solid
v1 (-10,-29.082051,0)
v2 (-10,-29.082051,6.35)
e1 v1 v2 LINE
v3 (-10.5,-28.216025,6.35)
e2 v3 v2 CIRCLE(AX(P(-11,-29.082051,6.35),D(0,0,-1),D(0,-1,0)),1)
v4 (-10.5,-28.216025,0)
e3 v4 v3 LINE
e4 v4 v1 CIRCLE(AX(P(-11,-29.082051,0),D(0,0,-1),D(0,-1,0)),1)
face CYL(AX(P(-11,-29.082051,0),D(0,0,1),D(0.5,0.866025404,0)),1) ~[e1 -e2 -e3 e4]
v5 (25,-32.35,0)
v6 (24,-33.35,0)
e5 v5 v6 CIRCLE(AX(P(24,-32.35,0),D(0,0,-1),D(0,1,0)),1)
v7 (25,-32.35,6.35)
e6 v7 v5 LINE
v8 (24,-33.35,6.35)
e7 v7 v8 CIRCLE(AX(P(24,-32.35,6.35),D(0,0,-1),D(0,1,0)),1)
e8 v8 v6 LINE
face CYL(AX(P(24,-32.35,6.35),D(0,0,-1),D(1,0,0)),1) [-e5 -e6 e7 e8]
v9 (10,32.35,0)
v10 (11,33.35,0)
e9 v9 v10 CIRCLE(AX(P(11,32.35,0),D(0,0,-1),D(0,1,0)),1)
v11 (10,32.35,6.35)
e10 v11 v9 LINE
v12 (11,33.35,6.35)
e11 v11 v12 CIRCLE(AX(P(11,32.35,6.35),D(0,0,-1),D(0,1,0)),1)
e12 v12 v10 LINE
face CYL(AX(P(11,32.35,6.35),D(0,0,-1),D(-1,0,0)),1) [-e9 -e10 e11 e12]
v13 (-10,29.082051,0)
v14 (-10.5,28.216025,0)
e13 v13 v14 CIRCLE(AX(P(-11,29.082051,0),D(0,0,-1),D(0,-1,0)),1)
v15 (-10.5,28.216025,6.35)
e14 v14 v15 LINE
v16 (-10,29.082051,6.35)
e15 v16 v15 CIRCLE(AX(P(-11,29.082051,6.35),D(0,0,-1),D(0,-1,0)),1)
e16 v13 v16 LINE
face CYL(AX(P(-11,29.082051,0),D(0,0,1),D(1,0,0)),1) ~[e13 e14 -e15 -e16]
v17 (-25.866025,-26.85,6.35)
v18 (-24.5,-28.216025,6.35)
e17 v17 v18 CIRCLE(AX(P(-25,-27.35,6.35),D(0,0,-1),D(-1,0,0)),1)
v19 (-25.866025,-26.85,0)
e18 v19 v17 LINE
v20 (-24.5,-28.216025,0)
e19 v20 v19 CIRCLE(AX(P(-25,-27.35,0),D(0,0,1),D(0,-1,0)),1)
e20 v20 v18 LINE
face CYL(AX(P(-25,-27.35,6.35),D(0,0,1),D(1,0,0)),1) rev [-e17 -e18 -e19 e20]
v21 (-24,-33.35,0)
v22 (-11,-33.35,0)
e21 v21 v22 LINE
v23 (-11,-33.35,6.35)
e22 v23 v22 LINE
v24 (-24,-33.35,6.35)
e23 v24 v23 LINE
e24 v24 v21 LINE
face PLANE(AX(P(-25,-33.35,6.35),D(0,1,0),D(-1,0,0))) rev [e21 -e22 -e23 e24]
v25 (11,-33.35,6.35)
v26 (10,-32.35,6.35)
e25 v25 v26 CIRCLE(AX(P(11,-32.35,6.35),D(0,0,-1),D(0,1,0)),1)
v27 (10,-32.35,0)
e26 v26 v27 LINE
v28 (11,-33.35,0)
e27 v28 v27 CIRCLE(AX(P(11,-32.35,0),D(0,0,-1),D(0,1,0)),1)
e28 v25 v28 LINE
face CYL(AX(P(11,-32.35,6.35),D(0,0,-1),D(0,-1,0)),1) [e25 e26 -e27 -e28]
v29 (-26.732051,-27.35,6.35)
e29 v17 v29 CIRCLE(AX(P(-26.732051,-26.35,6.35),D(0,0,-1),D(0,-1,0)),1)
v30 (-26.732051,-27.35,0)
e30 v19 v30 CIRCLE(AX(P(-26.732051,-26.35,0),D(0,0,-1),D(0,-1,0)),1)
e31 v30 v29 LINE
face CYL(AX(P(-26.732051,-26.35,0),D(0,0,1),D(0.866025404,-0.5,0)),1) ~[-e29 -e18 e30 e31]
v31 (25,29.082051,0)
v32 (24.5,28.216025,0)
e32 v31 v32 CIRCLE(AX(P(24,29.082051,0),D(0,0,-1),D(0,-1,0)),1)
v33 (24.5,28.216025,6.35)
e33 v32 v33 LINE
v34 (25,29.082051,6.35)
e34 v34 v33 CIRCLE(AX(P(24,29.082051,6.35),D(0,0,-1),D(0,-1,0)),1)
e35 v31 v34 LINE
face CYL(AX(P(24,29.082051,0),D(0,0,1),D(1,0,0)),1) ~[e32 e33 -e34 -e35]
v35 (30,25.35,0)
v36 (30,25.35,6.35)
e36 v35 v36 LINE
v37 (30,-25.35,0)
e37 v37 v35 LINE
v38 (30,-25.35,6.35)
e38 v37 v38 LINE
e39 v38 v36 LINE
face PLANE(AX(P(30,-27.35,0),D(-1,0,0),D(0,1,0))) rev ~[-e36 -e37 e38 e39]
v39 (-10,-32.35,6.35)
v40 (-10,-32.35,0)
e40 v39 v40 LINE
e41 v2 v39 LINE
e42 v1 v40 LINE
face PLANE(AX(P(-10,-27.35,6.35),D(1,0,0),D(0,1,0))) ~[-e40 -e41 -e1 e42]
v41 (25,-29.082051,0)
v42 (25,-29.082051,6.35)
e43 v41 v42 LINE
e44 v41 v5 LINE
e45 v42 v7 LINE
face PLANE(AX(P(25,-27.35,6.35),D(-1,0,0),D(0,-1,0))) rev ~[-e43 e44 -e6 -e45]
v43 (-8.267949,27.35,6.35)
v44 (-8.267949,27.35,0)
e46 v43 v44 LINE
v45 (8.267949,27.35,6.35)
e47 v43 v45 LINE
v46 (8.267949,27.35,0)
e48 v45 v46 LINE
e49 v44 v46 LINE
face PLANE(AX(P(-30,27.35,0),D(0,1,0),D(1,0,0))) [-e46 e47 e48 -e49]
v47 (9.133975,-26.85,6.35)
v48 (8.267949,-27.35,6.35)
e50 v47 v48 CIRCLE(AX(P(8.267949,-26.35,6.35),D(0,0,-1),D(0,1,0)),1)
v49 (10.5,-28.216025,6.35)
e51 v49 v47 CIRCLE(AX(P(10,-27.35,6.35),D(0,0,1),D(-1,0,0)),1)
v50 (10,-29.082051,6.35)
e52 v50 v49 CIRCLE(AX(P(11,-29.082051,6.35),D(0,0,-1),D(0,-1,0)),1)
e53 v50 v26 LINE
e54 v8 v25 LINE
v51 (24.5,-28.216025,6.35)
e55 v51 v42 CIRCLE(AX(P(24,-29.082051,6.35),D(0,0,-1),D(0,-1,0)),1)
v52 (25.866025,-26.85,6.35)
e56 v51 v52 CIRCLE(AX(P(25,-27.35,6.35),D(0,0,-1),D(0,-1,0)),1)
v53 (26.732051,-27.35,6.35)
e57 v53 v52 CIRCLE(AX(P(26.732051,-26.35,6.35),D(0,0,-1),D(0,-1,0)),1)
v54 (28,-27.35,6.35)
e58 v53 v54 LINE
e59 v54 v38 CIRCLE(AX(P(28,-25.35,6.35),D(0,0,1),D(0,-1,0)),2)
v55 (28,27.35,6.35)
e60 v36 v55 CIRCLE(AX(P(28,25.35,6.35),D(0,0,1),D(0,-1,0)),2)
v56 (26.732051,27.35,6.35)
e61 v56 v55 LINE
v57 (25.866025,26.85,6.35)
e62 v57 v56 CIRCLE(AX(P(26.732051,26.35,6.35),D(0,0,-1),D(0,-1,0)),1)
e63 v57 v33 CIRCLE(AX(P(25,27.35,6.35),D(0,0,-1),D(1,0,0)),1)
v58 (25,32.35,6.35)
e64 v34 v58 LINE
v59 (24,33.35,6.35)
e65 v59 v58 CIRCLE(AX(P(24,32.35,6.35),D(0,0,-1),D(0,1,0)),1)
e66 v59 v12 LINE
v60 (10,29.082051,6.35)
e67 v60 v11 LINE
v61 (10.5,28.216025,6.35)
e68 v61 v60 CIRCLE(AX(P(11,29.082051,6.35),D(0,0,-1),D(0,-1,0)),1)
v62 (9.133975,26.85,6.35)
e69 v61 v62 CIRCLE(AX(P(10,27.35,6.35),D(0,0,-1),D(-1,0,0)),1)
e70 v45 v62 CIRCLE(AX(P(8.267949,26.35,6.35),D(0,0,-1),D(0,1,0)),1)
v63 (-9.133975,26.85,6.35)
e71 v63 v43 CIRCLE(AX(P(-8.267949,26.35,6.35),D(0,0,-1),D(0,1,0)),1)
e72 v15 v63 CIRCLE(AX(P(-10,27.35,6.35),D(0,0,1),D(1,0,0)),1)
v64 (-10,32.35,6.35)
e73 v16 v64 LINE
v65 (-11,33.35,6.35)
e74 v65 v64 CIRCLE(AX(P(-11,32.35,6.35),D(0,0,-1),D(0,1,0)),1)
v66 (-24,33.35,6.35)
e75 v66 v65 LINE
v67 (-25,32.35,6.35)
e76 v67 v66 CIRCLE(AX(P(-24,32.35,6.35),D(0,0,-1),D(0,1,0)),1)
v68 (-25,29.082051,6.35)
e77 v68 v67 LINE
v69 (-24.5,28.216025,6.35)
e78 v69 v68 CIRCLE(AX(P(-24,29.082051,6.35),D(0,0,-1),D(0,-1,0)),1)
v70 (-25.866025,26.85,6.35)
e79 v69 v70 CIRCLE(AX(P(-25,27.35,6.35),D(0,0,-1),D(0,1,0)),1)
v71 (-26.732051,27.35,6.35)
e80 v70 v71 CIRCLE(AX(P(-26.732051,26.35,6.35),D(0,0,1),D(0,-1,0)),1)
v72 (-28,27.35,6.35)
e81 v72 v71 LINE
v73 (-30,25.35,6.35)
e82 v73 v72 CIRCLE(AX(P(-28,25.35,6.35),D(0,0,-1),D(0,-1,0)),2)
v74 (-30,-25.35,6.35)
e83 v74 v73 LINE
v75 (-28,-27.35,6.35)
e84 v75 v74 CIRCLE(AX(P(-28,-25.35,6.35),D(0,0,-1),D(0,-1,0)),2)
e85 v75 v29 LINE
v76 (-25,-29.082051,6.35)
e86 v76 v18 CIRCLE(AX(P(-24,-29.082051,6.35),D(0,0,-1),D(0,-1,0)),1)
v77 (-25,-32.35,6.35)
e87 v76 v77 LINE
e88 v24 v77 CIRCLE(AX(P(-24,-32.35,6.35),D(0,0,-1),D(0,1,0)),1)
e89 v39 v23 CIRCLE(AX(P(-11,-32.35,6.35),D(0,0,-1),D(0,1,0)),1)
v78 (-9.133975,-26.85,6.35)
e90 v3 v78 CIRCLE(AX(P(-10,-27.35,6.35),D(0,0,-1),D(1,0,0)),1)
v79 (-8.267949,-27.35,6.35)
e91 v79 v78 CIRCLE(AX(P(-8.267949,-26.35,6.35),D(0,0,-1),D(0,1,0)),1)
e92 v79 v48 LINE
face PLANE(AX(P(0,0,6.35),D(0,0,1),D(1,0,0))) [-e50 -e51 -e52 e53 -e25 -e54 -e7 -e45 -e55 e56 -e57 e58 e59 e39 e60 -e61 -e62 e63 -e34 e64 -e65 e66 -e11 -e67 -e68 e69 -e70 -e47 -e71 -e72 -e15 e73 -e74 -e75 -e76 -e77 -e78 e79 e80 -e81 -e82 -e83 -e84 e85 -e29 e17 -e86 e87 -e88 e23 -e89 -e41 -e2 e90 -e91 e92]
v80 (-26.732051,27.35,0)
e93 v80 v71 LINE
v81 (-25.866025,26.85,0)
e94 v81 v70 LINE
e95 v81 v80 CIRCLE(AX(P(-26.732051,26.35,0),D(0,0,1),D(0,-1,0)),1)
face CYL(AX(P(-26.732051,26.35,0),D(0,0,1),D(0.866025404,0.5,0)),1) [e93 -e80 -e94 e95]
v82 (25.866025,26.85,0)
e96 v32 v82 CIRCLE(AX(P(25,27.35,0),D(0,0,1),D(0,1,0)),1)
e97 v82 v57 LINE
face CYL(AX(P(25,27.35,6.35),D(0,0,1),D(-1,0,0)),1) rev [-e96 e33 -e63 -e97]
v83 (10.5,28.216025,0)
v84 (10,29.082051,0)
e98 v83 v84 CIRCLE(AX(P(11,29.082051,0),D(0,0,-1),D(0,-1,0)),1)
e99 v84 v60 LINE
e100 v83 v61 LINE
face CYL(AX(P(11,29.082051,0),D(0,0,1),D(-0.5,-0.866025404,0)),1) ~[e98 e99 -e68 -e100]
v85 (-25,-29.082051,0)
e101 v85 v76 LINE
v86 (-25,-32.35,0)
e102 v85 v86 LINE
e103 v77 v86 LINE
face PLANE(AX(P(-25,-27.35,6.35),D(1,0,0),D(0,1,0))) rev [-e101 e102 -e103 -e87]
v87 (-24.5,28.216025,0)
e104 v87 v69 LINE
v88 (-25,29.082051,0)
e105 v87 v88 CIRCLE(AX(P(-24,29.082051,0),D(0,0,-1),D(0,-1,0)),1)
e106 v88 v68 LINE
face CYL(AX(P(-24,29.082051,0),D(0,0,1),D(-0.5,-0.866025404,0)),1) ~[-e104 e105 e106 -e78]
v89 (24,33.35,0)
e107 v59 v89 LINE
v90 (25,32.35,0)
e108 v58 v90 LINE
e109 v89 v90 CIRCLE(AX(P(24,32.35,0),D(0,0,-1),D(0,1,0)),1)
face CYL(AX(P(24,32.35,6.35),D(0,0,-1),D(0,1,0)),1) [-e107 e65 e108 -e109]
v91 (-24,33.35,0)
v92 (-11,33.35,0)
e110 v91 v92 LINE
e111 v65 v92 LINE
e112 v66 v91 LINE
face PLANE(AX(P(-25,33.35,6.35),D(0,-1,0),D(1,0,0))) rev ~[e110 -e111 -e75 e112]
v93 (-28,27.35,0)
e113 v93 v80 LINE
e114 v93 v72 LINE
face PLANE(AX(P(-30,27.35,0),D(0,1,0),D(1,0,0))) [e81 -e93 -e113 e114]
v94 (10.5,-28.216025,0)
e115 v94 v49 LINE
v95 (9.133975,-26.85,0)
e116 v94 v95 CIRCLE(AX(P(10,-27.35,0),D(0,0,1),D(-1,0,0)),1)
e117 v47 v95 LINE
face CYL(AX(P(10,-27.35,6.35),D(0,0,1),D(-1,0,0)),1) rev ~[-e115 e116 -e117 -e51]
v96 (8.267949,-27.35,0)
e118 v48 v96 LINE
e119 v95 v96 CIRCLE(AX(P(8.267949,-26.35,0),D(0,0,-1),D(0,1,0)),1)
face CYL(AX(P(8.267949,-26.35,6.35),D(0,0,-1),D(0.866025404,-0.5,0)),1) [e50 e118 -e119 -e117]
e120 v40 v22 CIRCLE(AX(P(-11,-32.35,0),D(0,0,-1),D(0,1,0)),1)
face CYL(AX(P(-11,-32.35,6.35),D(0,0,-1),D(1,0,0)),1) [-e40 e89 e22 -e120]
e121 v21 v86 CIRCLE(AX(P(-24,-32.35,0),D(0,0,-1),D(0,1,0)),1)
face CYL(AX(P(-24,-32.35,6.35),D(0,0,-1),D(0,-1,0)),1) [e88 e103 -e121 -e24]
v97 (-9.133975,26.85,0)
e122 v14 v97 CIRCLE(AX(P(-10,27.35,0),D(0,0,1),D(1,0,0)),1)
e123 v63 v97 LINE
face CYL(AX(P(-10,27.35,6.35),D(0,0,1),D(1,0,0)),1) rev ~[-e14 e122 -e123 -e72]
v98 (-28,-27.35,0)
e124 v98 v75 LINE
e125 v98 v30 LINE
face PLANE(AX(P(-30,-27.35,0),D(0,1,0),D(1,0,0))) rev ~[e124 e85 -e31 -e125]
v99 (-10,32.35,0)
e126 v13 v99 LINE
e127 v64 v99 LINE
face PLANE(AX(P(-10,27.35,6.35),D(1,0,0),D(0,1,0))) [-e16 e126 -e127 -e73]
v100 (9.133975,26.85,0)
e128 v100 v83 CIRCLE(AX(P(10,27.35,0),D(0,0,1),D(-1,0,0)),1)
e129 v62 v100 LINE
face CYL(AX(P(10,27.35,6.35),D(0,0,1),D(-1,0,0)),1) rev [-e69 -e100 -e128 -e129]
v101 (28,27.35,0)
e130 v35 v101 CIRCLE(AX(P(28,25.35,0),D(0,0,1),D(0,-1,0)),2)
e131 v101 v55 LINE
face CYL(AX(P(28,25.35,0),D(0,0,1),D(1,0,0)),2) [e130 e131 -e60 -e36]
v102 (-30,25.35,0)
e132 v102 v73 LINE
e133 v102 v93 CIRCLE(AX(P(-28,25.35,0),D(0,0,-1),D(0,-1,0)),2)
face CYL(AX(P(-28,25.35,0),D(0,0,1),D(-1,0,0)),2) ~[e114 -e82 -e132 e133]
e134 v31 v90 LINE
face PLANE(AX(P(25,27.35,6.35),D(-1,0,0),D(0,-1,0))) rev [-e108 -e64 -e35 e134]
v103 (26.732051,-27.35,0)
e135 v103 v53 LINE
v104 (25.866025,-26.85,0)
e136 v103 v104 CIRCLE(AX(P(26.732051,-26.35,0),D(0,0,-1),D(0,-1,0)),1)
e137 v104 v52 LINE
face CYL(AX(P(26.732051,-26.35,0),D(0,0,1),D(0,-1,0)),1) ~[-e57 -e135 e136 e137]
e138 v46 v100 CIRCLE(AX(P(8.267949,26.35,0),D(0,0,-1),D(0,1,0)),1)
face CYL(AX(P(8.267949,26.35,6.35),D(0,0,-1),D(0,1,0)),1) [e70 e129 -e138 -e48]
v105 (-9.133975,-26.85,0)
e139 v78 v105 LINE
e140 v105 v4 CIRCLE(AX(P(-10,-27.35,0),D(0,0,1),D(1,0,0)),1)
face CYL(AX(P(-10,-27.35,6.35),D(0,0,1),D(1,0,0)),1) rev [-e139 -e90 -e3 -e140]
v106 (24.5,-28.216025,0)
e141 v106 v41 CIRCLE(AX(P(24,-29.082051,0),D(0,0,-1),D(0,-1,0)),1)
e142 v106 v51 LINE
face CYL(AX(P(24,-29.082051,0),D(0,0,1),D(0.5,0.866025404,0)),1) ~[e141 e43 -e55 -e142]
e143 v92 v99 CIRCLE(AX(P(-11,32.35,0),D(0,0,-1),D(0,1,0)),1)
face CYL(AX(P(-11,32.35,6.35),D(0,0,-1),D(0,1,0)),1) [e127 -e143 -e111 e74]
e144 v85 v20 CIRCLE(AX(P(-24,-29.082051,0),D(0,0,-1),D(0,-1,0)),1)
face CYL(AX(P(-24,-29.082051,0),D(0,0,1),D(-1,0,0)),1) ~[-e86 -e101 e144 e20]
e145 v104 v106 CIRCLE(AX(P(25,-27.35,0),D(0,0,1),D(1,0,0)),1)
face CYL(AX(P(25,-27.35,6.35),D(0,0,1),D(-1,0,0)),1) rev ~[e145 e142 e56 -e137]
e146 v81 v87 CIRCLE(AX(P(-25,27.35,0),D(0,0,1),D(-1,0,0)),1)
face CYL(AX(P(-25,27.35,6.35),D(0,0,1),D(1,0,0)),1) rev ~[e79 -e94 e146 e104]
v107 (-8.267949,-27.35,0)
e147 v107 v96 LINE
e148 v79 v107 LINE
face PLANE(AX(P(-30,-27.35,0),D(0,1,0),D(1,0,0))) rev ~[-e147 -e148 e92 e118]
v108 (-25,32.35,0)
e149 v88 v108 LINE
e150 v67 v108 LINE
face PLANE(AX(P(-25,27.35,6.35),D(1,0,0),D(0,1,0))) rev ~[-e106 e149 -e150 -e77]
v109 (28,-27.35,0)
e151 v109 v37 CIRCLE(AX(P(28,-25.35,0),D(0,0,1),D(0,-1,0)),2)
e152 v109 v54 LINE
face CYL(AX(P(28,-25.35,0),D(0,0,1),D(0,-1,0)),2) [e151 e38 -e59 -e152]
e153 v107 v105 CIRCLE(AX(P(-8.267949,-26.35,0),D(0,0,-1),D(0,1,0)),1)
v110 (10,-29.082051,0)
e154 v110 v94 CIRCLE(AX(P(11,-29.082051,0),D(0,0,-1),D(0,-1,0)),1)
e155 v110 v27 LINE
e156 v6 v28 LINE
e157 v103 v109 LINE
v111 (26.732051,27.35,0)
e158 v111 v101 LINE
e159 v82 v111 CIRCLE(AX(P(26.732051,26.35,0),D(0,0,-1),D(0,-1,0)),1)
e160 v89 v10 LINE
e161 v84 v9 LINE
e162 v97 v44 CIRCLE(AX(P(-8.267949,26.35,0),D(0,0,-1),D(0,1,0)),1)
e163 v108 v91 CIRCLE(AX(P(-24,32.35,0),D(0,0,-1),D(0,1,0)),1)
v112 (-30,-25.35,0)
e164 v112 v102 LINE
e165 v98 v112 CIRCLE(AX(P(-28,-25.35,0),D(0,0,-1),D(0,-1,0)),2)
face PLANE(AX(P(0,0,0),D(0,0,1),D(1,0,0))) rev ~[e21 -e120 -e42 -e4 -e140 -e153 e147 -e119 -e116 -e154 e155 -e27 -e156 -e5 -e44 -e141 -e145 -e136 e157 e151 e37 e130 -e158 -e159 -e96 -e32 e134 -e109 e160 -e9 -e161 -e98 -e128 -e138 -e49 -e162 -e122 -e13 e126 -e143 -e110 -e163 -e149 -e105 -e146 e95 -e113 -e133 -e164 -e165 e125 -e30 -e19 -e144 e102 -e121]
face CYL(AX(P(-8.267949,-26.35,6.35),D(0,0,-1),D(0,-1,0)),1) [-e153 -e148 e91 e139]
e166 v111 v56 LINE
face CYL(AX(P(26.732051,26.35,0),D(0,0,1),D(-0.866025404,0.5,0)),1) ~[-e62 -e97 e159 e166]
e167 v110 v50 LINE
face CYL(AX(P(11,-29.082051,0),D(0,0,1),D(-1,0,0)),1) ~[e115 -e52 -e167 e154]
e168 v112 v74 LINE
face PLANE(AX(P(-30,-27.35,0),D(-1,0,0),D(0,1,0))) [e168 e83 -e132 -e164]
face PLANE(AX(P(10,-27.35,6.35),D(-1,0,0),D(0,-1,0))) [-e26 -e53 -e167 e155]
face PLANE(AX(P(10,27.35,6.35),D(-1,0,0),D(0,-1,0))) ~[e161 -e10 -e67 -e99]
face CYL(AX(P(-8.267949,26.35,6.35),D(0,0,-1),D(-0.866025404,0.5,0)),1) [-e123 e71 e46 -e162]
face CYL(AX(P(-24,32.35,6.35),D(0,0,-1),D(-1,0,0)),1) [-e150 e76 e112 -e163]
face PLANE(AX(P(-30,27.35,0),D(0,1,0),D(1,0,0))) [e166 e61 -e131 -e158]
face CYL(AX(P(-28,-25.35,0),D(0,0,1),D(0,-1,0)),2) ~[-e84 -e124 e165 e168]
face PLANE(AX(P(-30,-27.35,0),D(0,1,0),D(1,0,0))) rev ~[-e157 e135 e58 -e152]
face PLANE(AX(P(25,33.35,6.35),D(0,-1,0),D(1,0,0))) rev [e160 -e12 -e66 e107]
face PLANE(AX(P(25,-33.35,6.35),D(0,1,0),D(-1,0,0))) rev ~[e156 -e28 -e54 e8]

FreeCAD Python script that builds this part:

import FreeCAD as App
import Part
import Sketcher
from FreeCAD import Vector


def edges_at(feature, points):
    """Names of the edges that pass closest to the given points."""
    edges = feature.Shape.Edges
    near = lambda p: min(range(len(edges)), key=lambda i: edges[i].distToShape(Part.Vertex(*p))[0])
    return sorted({f"Edge{near(p) + 1}" for p in points})


def add_polygon(sketch, points):
    """Adds a closed chain of lines whose ends are joined by coincident constraints."""
    first, n = sketch.GeometryCount, len(points)
    for a, b in zip(points, points[1:] + points[:1]):
        sketch.addGeometry(Part.LineSegment(App.Vector(*a, 0), App.Vector(*b, 0)), False)
    for i in range(n):
        sketch.addConstraint(Sketcher.Constraint("Coincident", first + i, 2, first + (i + 1) % n, 1))

doc = App.newDocument("Part")
body = doc.addObject("PartDesign::Body", "Body")

# Sketch on XY plane
sketch1 = body.newObject("Sketcher::SketchObject", "Sketch")
sketch1.AttachmentSupport = (doc.getObject("XY_Plane"), [""])
sketch1.MapMode = "FlatFace"
add_polygon(sketch1, [(-30, 27), (-30, -27), (30, -27), (30, 27)])  # lines 0-3
sketch1.addConstraint(Sketcher.Constraint("Vertical", 0))
sketch1.addConstraint(Sketcher.Constraint("Horizontal", 1))
sketch1.addConstraint(Sketcher.Constraint("Vertical", 2))
sketch1.addConstraint(Sketcher.Constraint("Horizontal", 3))
sketch1.addConstraint(Sketcher.Constraint("Symmetric", 0, 2, 2, 2, -1, 1))
sketch1.addConstraint(Sketcher.Constraint("DistanceX", 1, 1, 1, 2, 60.0))
sketch1.addConstraint(Sketcher.Constraint("DistanceY", 0, 2, 0, 1, 54.7))
pad1 = body.newObject("PartDesign::Pad", "Pad")
pad1.Profile = sketch1
pad1.Length = 6.35

# Sketch on XY plane
sketch2 = body.newObject("Sketcher::SketchObject", "Sketch001")
sketch2.AttachmentSupport = (doc.getObject("XY_Plane"), [""])
sketch2.MapMode = "FlatFace"
sketch2.AttachmentOffset = App.Placement(Vector(0, 0, 6.35), App.Rotation())
add_polygon(sketch2, [(-25, 33), (-25, 27), (-10, 27), (-10, 33)])  # lines 0-3
sketch2.addConstraint(Sketcher.Constraint("Vertical", 0))
sketch2.addConstraint(Sketcher.Constraint("Horizontal", 1))
sketch2.addConstraint(Sketcher.Constraint("Vertical", 2))
sketch2.addConstraint(Sketcher.Constraint("Horizontal", 3))
sketch2.addConstraint(Sketcher.Constraint("DistanceX", 1, 1, 1, 2, 15.0))
sketch2.addConstraint(Sketcher.Constraint("DistanceY", 0, 2, 0, 1, 6.0))
sketch2.addConstraint(Sketcher.Constraint("DistanceX", 0, 2, -1, 1, 25.0))
sketch2.addConstraint(Sketcher.Constraint("DistanceY", -1, 1, 0, 2, 27.35))
pad2 = body.newObject("PartDesign::Pad", "Pad001")
pad2.Profile = sketch2
pad2.Length = 6.35
pad2.Reversed = True

# Sketch on XY plane
sketch3 = body.newObject("Sketcher::SketchObject", "Sketch002")
sketch3.AttachmentSupport = (doc.getObject("XY_Plane"), [""])
sketch3.MapMode = "FlatFace"
sketch3.AttachmentOffset = App.Placement(Vector(0, 0, 6.35), App.Rotation())
sketch3.addGeometry(Part.Circle(Vector(-25, 27.4, 0), Vector(0, 0, 1), 1), False)
sketch3.addGeometry(Part.Circle(Vector(-10, 27.4, 0), Vector(0, 0, 1), 1), False)
sketch3.addConstraint(Sketcher.Constraint("Equal", 0, 1))
sketch3.addConstraint(Sketcher.Constraint("Horizontal", 0, 3, 1, 3))
sketch3.addConstraint(Sketcher.Constraint("Diameter", 0, 2.0))
sketch3.addConstraint(Sketcher.Constraint("DistanceX", 0, 3, -1, 1, 25.0))
sketch3.addConstraint(Sketcher.Constraint("DistanceX", 1, 3, -1, 1, 10.0))
sketch3.addConstraint(Sketcher.Constraint("DistanceY", -1, 1, 0, 3, 27.35))
pocket1 = body.newObject("PartDesign::Pocket", "Pocket")
pocket1.Profile = sketch3
pocket1.Type = "ThroughAll"
doc.recompute()

mirrored = body.newObject("PartDesign::Mirrored", "Mirrored")
mirrored.Originals = [pad2, pocket1]
mirrored.MirrorPlane = (doc.getObject("YZ_Plane"), [""])
body.Tip = mirrored
doc.recompute()

mirrored2 = body.newObject("PartDesign::Mirrored", "Mirrored001")
mirrored2.Originals = [pad2, pocket1]
mirrored2.MirrorPlane = (doc.getObject("XZ_Plane"), [""])
body.Tip = mirrored2

# Sketch on XY plane
sketch4 = body.newObject("Sketcher::SketchObject", "Sketch003")
sketch4.AttachmentSupport = (doc.getObject("XY_Plane"), [""])
sketch4.MapMode = "FlatFace"
sketch4.AttachmentOffset = App.Placement(Vector(0, 0, 6.35), App.Rotation())
add_polygon(sketch4, [(25, -33), (25, -27), (10, -27), (10, -33)])  # lines 0-3
sketch4.addConstraint(Sketcher.Constraint("Vertical", 0))
sketch4.addConstraint(Sketcher.Constraint("Horizontal", 1))
sketch4.addConstraint(Sketcher.Constraint("Vertical", 2))
sketch4.addConstraint(Sketcher.Constraint("Horizontal", 3))
sketch4.addConstraint(Sketcher.Constraint("DistanceX", 1, 2, 1, 1, 15.0))
sketch4.addConstraint(Sketcher.Constraint("DistanceY", 0, 1, 0, 2, 6.0))
sketch4.addConstraint(Sketcher.Constraint("DistanceX", -1, 1, 0, 2, 25.0))
sketch4.addConstraint(Sketcher.Constraint("DistanceY", 0, 2, -1, 1, 27.35))
pad3 = body.newObject("PartDesign::Pad", "Pad002")
pad3.Profile = sketch4
pad3.Length = 6.35
pad3.Reversed = True

# Sketch on XY plane
sketch5 = body.newObject("Sketcher::SketchObject", "Sketch004")
sketch5.AttachmentSupport = (doc.getObject("XY_Plane"), [""])
sketch5.MapMode = "FlatFace"
sketch5.AttachmentOffset = App.Placement(Vector(0, 0, 6.35), App.Rotation())
sketch5.addGeometry(Part.Circle(Vector(25, -27.4, 0), Vector(0, 0, 1), 1), False)
sketch5.addGeometry(Part.Circle(Vector(10, -27.4, 0), Vector(0, 0, 1), 1), False)
sketch5.addConstraint(Sketcher.Constraint("Equal", 0, 1))
sketch5.addConstraint(Sketcher.Constraint("Horizontal", 0, 3, 1, 3))
sketch5.addConstraint(Sketcher.Constraint("Diameter", 0, 2.0))
sketch5.addConstraint(Sketcher.Constraint("DistanceX", -1, 1, 0, 3, 25.0))
sketch5.addConstraint(Sketcher.Constraint("DistanceX", -1, 1, 1, 3, 10.0))
sketch5.addConstraint(Sketcher.Constraint("DistanceY", 0, 3, -1, 1, 27.35))
pocket2 = body.newObject("PartDesign::Pocket", "Pocket001")
pocket2.Profile = sketch5
pocket2.Type = "ThroughAll"
doc.recompute()

fillet = body.newObject("PartDesign::Fillet", "Fillet")
fillet.Base = (pocket2, edges_at(pocket2, [
    (26, -27.35, 3.175),
    (9, -27.35, 3.175),
    (-10, -33.35, 3.175),
    (-25, -33.35, 3.175),
    (-25, -28.35, 3.175),
    (-10, -28.35, 3.175),
    (-26, -27.35, 3.175),
    (-9, -27.35, 3.175),
    (-25, 33.35, 3.175),
    (-10, 33.35, 3.175),
    (-10, 28.35, 3.175),
    (-25, 28.35, 3.175),
    (-26, 27.35, 3.175),
    (-9, 27.35, 3.175),
    (10, 33.35, 3.175),
    (25, 33.35, 3.175),
    (25, 28.35, 3.175),
    (10, 28.35, 3.175),
    (26, 27.35, 3.175),
    (9, 27.35, 3.175),
    (25, -33.35, 3.175),
    (10, -33.35, 3.175),
    (10, -28.35, 3.175),
    (25, -28.35, 3.175),
]))
fillet.Radius = 1
doc.recompute()

fillet2 = body.newObject("PartDesign::Fillet", "Fillet001")
fillet2.Base = (fillet, edges_at(fillet, [
    (-30, 27.35, 3.175),
    (30, 27.35, 3.175),
    (30, -27.35, 3.175),
    (-30, -27.35, 3.175),
]))
fillet2.Radius = 2

doc.recompute()
